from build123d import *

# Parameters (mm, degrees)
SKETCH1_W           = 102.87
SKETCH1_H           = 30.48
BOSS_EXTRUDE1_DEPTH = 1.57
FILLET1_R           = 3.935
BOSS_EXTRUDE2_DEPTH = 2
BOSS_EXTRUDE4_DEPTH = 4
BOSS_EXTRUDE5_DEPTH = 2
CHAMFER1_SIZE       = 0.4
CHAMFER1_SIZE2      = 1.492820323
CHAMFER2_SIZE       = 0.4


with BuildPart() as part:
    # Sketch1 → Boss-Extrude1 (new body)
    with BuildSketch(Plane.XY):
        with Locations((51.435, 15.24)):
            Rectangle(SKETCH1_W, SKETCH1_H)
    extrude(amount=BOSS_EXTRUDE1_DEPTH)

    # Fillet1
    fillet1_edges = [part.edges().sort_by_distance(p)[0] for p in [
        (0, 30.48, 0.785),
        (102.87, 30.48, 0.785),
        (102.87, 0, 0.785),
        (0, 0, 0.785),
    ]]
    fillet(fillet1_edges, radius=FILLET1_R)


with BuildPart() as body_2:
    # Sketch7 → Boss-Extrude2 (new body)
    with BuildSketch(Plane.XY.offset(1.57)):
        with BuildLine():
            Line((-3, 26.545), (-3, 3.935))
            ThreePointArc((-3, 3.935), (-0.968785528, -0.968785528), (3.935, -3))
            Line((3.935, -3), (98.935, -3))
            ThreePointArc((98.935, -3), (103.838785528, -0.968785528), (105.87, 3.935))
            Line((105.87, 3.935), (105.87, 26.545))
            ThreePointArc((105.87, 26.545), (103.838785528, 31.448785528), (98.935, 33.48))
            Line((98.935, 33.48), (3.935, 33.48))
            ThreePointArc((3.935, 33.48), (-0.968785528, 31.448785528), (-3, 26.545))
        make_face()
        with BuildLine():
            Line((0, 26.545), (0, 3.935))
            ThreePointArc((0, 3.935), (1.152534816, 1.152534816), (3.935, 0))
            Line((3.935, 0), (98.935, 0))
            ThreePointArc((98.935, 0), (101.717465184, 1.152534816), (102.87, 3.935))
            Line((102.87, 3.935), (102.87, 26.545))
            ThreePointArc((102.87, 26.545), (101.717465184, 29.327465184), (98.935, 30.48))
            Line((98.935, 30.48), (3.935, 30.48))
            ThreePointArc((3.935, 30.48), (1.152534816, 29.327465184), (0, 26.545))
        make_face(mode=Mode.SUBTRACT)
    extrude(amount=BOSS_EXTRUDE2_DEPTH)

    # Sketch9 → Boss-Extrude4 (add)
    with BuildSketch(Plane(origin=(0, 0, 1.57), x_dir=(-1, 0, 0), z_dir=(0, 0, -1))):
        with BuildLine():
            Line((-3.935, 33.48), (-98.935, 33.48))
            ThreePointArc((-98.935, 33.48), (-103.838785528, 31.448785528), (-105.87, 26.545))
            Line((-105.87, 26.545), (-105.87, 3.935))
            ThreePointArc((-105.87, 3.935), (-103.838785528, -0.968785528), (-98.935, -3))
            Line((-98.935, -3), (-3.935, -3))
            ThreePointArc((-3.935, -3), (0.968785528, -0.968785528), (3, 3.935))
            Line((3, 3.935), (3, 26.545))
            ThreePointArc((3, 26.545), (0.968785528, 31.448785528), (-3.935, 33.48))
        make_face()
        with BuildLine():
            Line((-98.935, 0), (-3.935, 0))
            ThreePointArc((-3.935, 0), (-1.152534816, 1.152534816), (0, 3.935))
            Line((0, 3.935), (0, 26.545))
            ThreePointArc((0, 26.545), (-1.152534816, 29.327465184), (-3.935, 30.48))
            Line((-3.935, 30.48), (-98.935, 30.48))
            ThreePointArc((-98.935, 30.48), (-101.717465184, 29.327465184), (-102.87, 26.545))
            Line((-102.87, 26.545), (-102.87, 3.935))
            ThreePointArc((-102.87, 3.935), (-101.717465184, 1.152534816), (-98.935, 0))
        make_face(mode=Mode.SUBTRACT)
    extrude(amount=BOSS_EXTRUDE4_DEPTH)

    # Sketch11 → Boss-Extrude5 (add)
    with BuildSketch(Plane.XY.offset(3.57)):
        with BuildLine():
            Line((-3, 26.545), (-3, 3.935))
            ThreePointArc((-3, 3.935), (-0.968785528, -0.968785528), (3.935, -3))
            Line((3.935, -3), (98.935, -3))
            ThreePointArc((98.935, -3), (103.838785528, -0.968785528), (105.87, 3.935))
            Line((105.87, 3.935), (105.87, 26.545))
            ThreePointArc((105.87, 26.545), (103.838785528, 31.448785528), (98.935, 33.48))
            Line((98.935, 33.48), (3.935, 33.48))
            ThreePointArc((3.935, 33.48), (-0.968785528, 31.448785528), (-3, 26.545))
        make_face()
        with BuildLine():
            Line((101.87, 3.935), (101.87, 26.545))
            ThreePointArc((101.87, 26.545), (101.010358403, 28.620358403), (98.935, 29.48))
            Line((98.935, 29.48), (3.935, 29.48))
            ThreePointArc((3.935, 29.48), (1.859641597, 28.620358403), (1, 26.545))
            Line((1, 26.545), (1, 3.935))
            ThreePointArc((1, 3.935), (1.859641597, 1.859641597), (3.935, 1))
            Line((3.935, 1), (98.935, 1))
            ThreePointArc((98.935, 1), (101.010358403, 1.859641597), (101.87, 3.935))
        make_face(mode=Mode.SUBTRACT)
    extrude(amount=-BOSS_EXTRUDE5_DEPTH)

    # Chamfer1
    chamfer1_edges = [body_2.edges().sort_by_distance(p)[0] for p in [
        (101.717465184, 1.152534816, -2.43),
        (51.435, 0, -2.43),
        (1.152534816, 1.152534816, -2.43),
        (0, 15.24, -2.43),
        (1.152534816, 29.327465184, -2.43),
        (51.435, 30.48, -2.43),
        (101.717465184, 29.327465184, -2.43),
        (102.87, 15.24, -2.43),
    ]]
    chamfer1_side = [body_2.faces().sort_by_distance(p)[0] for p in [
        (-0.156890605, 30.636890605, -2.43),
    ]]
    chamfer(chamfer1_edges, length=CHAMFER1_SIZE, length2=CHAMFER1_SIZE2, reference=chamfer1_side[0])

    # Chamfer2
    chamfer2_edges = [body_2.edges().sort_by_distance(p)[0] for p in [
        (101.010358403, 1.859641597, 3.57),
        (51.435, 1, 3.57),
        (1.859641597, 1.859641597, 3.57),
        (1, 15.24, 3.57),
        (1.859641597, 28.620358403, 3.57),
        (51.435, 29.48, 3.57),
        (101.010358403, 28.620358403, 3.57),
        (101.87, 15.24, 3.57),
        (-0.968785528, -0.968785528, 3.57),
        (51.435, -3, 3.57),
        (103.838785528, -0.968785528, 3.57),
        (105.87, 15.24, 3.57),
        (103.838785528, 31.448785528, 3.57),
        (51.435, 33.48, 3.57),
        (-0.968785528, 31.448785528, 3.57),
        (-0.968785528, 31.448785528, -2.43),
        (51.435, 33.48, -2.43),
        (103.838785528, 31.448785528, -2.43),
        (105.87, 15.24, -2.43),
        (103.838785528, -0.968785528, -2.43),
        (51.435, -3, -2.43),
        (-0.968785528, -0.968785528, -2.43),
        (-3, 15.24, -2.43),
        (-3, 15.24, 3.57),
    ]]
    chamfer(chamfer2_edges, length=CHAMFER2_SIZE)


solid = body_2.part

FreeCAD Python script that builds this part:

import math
import FreeCAD as App
import Part
import Sketcher

V = App.Vector
Q = App.Units.Quantity


def edges_at(feature, points):
    """Names of the edges that pass closest to the given points."""
    edges = feature.Shape.Edges
    near = lambda p: min(range(len(edges)), key=lambda i: edges[i].distToShape(Part.Vertex(*p))[0])
    return sorted({f"Edge{near(p) + 1}" for p in points})


def add_polygon(sketch, points):
    """Adds a closed chain of lines whose ends are joined by coincident constraints."""
    first, n = sketch.GeometryCount, len(points)
    for a, b in zip(points, points[1:] + points[:1]):
        sketch.addGeometry(Part.LineSegment(App.Vector(*a, 0), App.Vector(*b, 0)), False)
    for i in range(n):
        sketch.addConstraint(Sketcher.Constraint("Coincident", first + i, 2, first + (i + 1) % n, 1))

doc = App.newDocument("Part")
body = doc.addObject("PartDesign::Body", "Body")

sketch1 = body.newObject("Sketcher::SketchObject", "Sketch")
sketch1.AttachmentSupport = (doc.getObject("XY_Plane"), [""])
sketch1.MapMode = "FlatFace"
add_polygon(sketch1, [(0, 30), (0, 0), (103, 0), (103, 30)])
sketch1.addConstraint([
    Sketcher.Constraint("Vertical", 0),
    Sketcher.Constraint("Horizontal", 1),
    Sketcher.Constraint("Vertical", 2),
    Sketcher.Constraint("Horizontal", 3),
    Sketcher.Constraint("Coincident", 0, 2, -1, 1),
    Sketcher.Constraint("DistanceX", 1, 1, 1, 2, Q("102.87 mm")),
    Sketcher.Constraint("DistanceY", 0, 2, 0, 1, Q("30.48 mm")),
])
pad1 = body.newObject("PartDesign::Pad", "Pad")
pad1.Profile = sketch1
pad1.Length = 1.57
doc.recompute()

fillet = body.newObject("PartDesign::Fillet", "Fillet")
fillet.Base = (pad1, edges_at(pad1, [
    (0, 30.48, 0.785),
    (102.87, 30.48, 0.785),
    (102.87, 0, 0.785),
    (0, 0, 0.785),
]))
fillet.Radius = 3.935
body2 = doc.addObject("PartDesign::Body", "Body001")

sketch2 = body2.newObject("Sketcher::SketchObject", "Sketch001")
sketch2.AttachmentSupport = (doc.getObject("XY_Plane001"), [""])
sketch2.MapMode = "FlatFace"
sketch2.AttachmentOffset = App.Placement(V(0, 0, 1.57), App.Rotation())
sketch2.addGeometry([
    Part.LineSegment(V(-3, 26.5, 0), V(-3, 3.9, 0)),
    Part.ArcOfCircle(Part.Circle(V(3.9, 3.9, 0), V(0, 0, 1), 6.9), math.radians(180), math.radians(270)),
    Part.LineSegment(V(3.9, -3, 0), V(98.9, -3, 0)),
    Part.ArcOfCircle(Part.Circle(V(98.9, 3.9, 0), V(0, 0, 1), 6.9), math.radians(-90), math.radians(0)),
    Part.LineSegment(V(105.9, 3.9, 0), V(105.9, 26.5, 0)),
    Part.ArcOfCircle(Part.Circle(V(98.9, 26.5, 0), V(0, 0, 1), 6.9), math.radians(0), math.radians(90)),
    Part.LineSegment(V(98.9, 33.5, 0), V(3.9, 33.5, 0)),
    Part.ArcOfCircle(Part.Circle(V(3.9, 26.5, 0), V(0, 0, 1), 6.9), math.radians(90), math.radians(180)),
    Part.LineSegment(V(0, 3.9, 0), V(0, 26.5, 0)),
    Part.ArcOfCircle(Part.Circle(V(3.9, 26.5, 0), V(0, 0, 1), 3.9), math.radians(90), math.radians(180)),
    Part.LineSegment(V(3.9, 30.5, 0), V(98.9, 30.5, 0)),
    Part.ArcOfCircle(Part.Circle(V(98.9, 26.5, 0), V(0, 0, 1), 3.9), math.radians(0), math.radians(90)),
    Part.LineSegment(V(102.9, 26.5, 0), V(102.9, 3.9, 0)),
    Part.ArcOfCircle(Part.Circle(V(98.9, 3.9, 0), V(0, 0, 1), 3.9), math.radians(-90), math.radians(0)),
    Part.LineSegment(V(98.9, 0, 0), V(3.9, 0, 0)),
    Part.ArcOfCircle(Part.Circle(V(3.9, 3.9, 0), V(0, 0, 1), 3.9), math.radians(180), math.radians(270)),
], False)
sketch2.addConstraint([
    Sketcher.Constraint("Tangent", 0, 2, 1, 1),
    Sketcher.Constraint("Tangent", 1, 2, 2, 1),
    Sketcher.Constraint("Tangent", 2, 2, 3, 1),
    Sketcher.Constraint("Tangent", 3, 2, 4, 1),
    Sketcher.Constraint("Tangent", 4, 2, 5, 1),
    Sketcher.Constraint("Tangent", 5, 2, 6, 1),
    Sketcher.Constraint("Tangent", 6, 2, 7, 1),
    Sketcher.Constraint("Tangent", 7, 2, 0, 1),
    Sketcher.Constraint("Tangent", 8, 2, 9, 2),
    Sketcher.Constraint("Tangent", 9, 1, 10, 1),
    Sketcher.Constraint("Tangent", 10, 2, 11, 2),
    Sketcher.Constraint("Tangent", 11, 1, 12, 1),
    Sketcher.Constraint("Tangent", 12, 2, 13, 2),
    Sketcher.Constraint("Tangent", 13, 1, 14, 1),
    Sketcher.Constraint("Tangent", 14, 2, 15, 2),
    Sketcher.Constraint("Tangent", 15, 1, 8, 1),
    Sketcher.Constraint("Vertical", 0),
    Sketcher.Constraint("Horizontal", 2),
    Sketcher.Constraint("Vertical", 4),
    Sketcher.Constraint("Horizontal", 6),
    Sketcher.Constraint("Vertical", 8),
    Sketcher.Constraint("Horizontal", 10),
    Sketcher.Constraint("Vertical", 12),
    Sketcher.Constraint("Horizontal", 14),
    Sketcher.Constraint("Coincident", 9, 3, 7, 3),
    Sketcher.Constraint("Coincident", 11, 3, 5, 3),
    Sketcher.Constraint("Coincident", 13, 3, 3, 3),
    Sketcher.Constraint("Equal", 1, 3),
    Sketcher.Constraint("Equal", 3, 5),
    Sketcher.Constraint("Equal", 5, 7),
    Sketcher.Constraint("Equal", 13, 15),
    Sketcher.Constraint("PointOnObject", 8, 2, -2),
    Sketcher.Constraint("PointOnObject", 13, 1, -1),
    Sketcher.Constraint("DistanceX", 2, 1, 2, 2, Q("95 mm")),
    Sketcher.Constraint("DistanceX", 0, 2, -1, 1, Q("3 mm")),
    Sketcher.Constraint("Radius", 1, Q("6.935 mm")),
    Sketcher.Constraint("DistanceY", 0, 2, 0, 1, Q("22.61 mm")),
])
pad2 = body2.newObject("PartDesign::Pad", "Pad001")
pad2.Profile = sketch2
pad2.Length = 2

sketch3 = body2.newObject("Sketcher::SketchObject", "Sketch002")
sketch3.AttachmentSupport = (doc.getObject("XY_Plane001"), [""])
sketch3.MapMode = "FlatFace"
sketch3.AttachmentOffset = App.Placement(V(0, 0, 1.57), App.Rotation())
sketch3.addGeometry([
    Part.LineSegment(V(3.9, 33.5, 0), V(98.9, 33.5, 0)),
    Part.ArcOfCircle(Part.Circle(V(98.9, 26.5, 0), V(0, 0, 1), 6.9), math.radians(0), math.radians(90)),
    Part.LineSegment(V(105.9, 26.5, 0), V(105.9, 3.9, 0)),
    Part.ArcOfCircle(Part.Circle(V(98.9, 3.9, 0), V(0, 0, 1), 6.9), math.radians(-90), math.radians(0)),
    Part.LineSegment(V(98.9, -3, 0), V(3.9, -3, 0)),
    Part.ArcOfCircle(Part.Circle(V(3.9, 3.9, 0), V(0, 0, 1), 6.9), math.radians(180), math.radians(270)),
    Part.LineSegment(V(-3, 3.9, 0), V(-3, 26.5, 0)),
    Part.ArcOfCircle(Part.Circle(V(3.9, 26.5, 0), V(0, 0, 1), 6.9), math.radians(90), math.radians(180)),
    Part.LineSegment(V(3.9, 0, 0), V(98.9, 0, 0)),
    Part.ArcOfCircle(Part.Circle(V(98.9, 3.9, 0), V(0, 0, 1), 3.9), math.radians(-90), math.radians(0)),
    Part.LineSegment(V(102.9, 3.9, 0), V(102.9, 26.5, 0)),
    Part.ArcOfCircle(Part.Circle(V(98.9, 26.5, 0), V(0, 0, 1), 3.9), math.radians(0), math.radians(90)),
    Part.LineSegment(V(98.9, 30.5, 0), V(3.9, 30.5, 0)),
    Part.ArcOfCircle(Part.Circle(V(3.9, 26.5, 0), V(0, 0, 1), 3.9), math.radians(90), math.radians(180)),
    Part.LineSegment(V(0, 26.5, 0), V(0, 3.9, 0)),
    Part.ArcOfCircle(Part.Circle(V(3.9, 3.9, 0), V(0, 0, 1), 3.9), math.radians(180), math.radians(270)),
], False)
sketch3.addConstraint([
    Sketcher.Constraint("Tangent", 0, 2, 1, 2),
    Sketcher.Constraint("Tangent", 1, 1, 2, 1),
    Sketcher.Constraint("Tangent", 2, 2, 3, 2),
    Sketcher.Constraint("Tangent", 3, 1, 4, 1),
    Sketcher.Constraint("Tangent", 4, 2, 5, 2),
    Sketcher.Constraint("Tangent", 5, 1, 6, 1),
    Sketcher.Constraint("Tangent", 6, 2, 7, 2),
    Sketcher.Constraint("Tangent", 7, 1, 0, 1),
    Sketcher.Constraint("Tangent", 8, 2, 9, 1),
    Sketcher.Constraint("Tangent", 9, 2, 10, 1),
    Sketcher.Constraint("Tangent", 10, 2, 11, 1),
    Sketcher.Constraint("Tangent", 11, 2, 12, 1),
    Sketcher.Constraint("Tangent", 12, 2, 13, 1),
    Sketcher.Constraint("Tangent", 13, 2, 14, 1),
    Sketcher.Constraint("Tangent", 14, 2, 15, 1),
    Sketcher.Constraint("Tangent", 15, 2, 8, 1),
    Sketcher.Constraint("Horizontal", 0),
    Sketcher.Constraint("Vertical", 2),
    Sketcher.Constraint("Horizontal", 4),
    Sketcher.Constraint("Vertical", 6),
    Sketcher.Constraint("Horizontal", 8),
    Sketcher.Constraint("Vertical", 10),
    Sketcher.Constraint("Horizontal", 12),
    Sketcher.Constraint("Vertical", 14),
    Sketcher.Constraint("Coincident", 9, 3, 3, 3),
    Sketcher.Constraint("Coincident", 11, 3, 1, 3),
    Sketcher.Constraint("Coincident", 13, 3, 7, 3),
    Sketcher.Constraint("Equal", 1, 3),
    Sketcher.Constraint("Equal", 3, 5),
    Sketcher.Constraint("Equal", 5, 7),
    Sketcher.Constraint("Equal", 13, 15),
    Sketcher.Constraint("PointOnObject", 8, 2, -1),
    Sketcher.Constraint("PointOnObject", 13, 2, -2),
    Sketcher.Constraint("DistanceX", 0, 1, 0, 2, Q("95 mm")),
    Sketcher.Constraint("DistanceY", 3, 1, -1, 1, Q("3 mm")),
    Sketcher.Constraint("Radius", 1, Q("6.935 mm")),
    Sketcher.Constraint("DistanceY", 2, 2, 2, 1, Q("22.61 mm")),
])
pad3 = body2.newObject("PartDesign::Pad", "Pad002")
pad3.Profile = sketch3
pad3.Length = 4
pad3.Reversed = True

sketch4 = body2.newObject("Sketcher::SketchObject", "Sketch003")
sketch4.AttachmentSupport = (doc.getObject("XY_Plane001"), [""])
sketch4.MapMode = "FlatFace"
sketch4.AttachmentOffset = App.Placement(V(0, 0, 3.57), App.Rotation())
sketch4.addGeometry([
    Part.LineSegment(V(-3, 26.5, 0), V(-3, 3.9, 0)),
    Part.ArcOfCircle(Part.Circle(V(3.9, 3.9, 0), V(0, 0, 1), 6.9), math.radians(180), math.radians(270)),
    Part.LineSegment(V(3.9, -3, 0), V(98.9, -3, 0)),
    Part.ArcOfCircle(Part.Circle(V(98.9, 3.9, 0), V(0, 0, 1), 6.9), math.radians(-90), math.radians(0)),
    Part.LineSegment(V(105.9, 3.9, 0), V(105.9, 26.5, 0)),
    Part.ArcOfCircle(Part.Circle(V(98.9, 26.5, 0), V(0, 0, 1), 6.9), math.radians(0), math.radians(90)),
    Part.LineSegment(V(98.9, 33.5, 0), V(3.9, 33.5, 0)),
    Part.ArcOfCircle(Part.Circle(V(3.9, 26.5, 0), V(0, 0, 1), 6.9), math.radians(90), math.radians(180)),
    Part.LineSegment(V(101.9, 26.5, 0), V(101.9, 3.9, 0)),
    Part.ArcOfCircle(Part.Circle(V(98.9, 3.9, 0), V(0, 0, 1), 2.9), math.radians(-90), math.radians(0)),
    Part.LineSegment(V(98.9, 1, 0), V(3.9, 1, 0)),
    Part.ArcOfCircle(Part.Circle(V(3.9, 3.9, 0), V(0, 0, 1), 2.9), math.radians(180), math.radians(270)),
    Part.LineSegment(V(1, 3.9, 0), V(1, 26.5, 0)),
    Part.ArcOfCircle(Part.Circle(V(3.9, 26.5, 0), V(0, 0, 1), 2.9), math.radians(90), math.radians(180)),
    Part.LineSegment(V(3.9, 29.5, 0), V(98.9, 29.5, 0)),
    Part.ArcOfCircle(Part.Circle(V(98.9, 26.5, 0), V(0, 0, 1), 2.9), math.radians(0), math.radians(90)),
], False)
sketch4.addConstraint([
    Sketcher.Constraint("Tangent", 0, 2, 1, 1),
    Sketcher.Constraint("Tangent", 1, 2, 2, 1),
    Sketcher.Constraint("Tangent", 2, 2, 3, 1),
    Sketcher.Constraint("Tangent", 3, 2, 4, 1),
    Sketcher.Constraint("Tangent", 4, 2, 5, 1),
    Sketcher.Constraint("Tangent", 5, 2, 6, 1),
    Sketcher.Constraint("Tangent", 6, 2, 7, 1),
    Sketcher.Constraint("Tangent", 7, 2, 0, 1),
    Sketcher.Constraint("Tangent", 8, 2, 9, 2),
    Sketcher.Constraint("Tangent", 9, 1, 10, 1),
    Sketcher.Constraint("Tangent", 10, 2, 11, 2),
    Sketcher.Constraint("Tangent", 11, 1, 12, 1),
    Sketcher.Constraint("Tangent", 12, 2, 13, 2),
    Sketcher.Constraint("Tangent", 13, 1, 14, 1),
    Sketcher.Constraint("Tangent", 14, 2, 15, 2),
    Sketcher.Constraint("Tangent", 15, 1, 8, 1),
    Sketcher.Constraint("Vertical", 0),
    Sketcher.Constraint("Horizontal", 2),
    Sketcher.Constraint("Vertical", 4),
    Sketcher.Constraint("Horizontal", 6),
    Sketcher.Constraint("Vertical", 8),
    Sketcher.Constraint("Horizontal", 10),
    Sketcher.Constraint("Vertical", 12),
    Sketcher.Constraint("Horizontal", 14),
    Sketcher.Constraint("Coincident", 9, 3, 3, 3),
    Sketcher.Constraint("Coincident", 11, 3, 1, 3),
    Sketcher.Constraint("Coincident", 13, 3, 7, 3),
    Sketcher.Constraint("Equal", 1, 3),
    Sketcher.Constraint("Equal", 3, 5),
    Sketcher.Constraint("Equal", 5, 7),
    Sketcher.Constraint("Equal", 13, 15),
    Sketcher.Constraint("DistanceX", 2, 1, 2, 2, Q("95 mm")),
    Sketcher.Constraint("DistanceX", 0, 2, -1, 1, Q("3 mm")),
    Sketcher.Constraint("DistanceY", 1, 2, -1, 1, Q("3 mm")),
    Sketcher.Constraint("DistanceY", -1, 1, 9, 1, Q("1 mm")),
    Sketcher.Constraint("Radius", 1, Q("6.935 mm")),
    Sketcher.Constraint("DistanceY", 0, 2, 0, 1, Q("22.61 mm")),
])
pad4 = body2.newObject("PartDesign::Pad", "Pad003")
pad4.Profile = sketch4
pad4.Length = 2
pad4.Reversed = True
doc.recompute()

chamfer = body2.newObject("PartDesign::Chamfer", "Chamfer")
chamfer.Base = (pad4, edges_at(pad4, [
    (101.717, 1.153, -2.43),
    (51.435, 0, -2.43),
    (1.153, 1.153, -2.43),
    (0, 15.24, -2.43),
    (1.153, 29.327, -2.43),
    (51.435, 30.48, -2.43),
    (101.717, 29.327, -2.43),
    (102.87, 15.24, -2.43),
]))
chamfer.ChamferType = "Two distances"
chamfer.Size = 0.4
chamfer.Size2 = 1.49282
doc.recompute()

chamfer2 = body2.newObject("PartDesign::Chamfer", "Chamfer001")
chamfer2.Base = (chamfer, edges_at(chamfer, [
    (101.01, 1.86, 3.57),
    (51.435, 1, 3.57),
    (1.86, 1.86, 3.57),
    (1, 15.24, 3.57),
    (1.86, 28.62, 3.57),
    (51.435, 29.48, 3.57),
    (101.01, 28.62, 3.57),
    (101.87, 15.24, 3.57),
    (-0.969, -0.969, 3.57),
    (51.435, -3, 3.57),
    (103.839, -0.969, 3.57),
    (105.87, 15.24, 3.57),
    (103.839, 31.449, 3.57),
    (51.435, 33.48, 3.57),
    (-0.969, 31.449, 3.57),
    (-0.969, 31.449, -2.43),
    (51.435, 33.48, -2.43),
    (103.839, 31.449, -2.43),
    (105.87, 15.24, -2.43),
    (103.839, -0.969, -2.43),
    (51.435, -3, -2.43),
    (-0.969, -0.969, -2.43),
    (-3, 15.24, -2.43),
    (-3, 15.24, 3.57),
]))
chamfer2.Size = 0.4
body.Visibility = False

doc.recompute()
